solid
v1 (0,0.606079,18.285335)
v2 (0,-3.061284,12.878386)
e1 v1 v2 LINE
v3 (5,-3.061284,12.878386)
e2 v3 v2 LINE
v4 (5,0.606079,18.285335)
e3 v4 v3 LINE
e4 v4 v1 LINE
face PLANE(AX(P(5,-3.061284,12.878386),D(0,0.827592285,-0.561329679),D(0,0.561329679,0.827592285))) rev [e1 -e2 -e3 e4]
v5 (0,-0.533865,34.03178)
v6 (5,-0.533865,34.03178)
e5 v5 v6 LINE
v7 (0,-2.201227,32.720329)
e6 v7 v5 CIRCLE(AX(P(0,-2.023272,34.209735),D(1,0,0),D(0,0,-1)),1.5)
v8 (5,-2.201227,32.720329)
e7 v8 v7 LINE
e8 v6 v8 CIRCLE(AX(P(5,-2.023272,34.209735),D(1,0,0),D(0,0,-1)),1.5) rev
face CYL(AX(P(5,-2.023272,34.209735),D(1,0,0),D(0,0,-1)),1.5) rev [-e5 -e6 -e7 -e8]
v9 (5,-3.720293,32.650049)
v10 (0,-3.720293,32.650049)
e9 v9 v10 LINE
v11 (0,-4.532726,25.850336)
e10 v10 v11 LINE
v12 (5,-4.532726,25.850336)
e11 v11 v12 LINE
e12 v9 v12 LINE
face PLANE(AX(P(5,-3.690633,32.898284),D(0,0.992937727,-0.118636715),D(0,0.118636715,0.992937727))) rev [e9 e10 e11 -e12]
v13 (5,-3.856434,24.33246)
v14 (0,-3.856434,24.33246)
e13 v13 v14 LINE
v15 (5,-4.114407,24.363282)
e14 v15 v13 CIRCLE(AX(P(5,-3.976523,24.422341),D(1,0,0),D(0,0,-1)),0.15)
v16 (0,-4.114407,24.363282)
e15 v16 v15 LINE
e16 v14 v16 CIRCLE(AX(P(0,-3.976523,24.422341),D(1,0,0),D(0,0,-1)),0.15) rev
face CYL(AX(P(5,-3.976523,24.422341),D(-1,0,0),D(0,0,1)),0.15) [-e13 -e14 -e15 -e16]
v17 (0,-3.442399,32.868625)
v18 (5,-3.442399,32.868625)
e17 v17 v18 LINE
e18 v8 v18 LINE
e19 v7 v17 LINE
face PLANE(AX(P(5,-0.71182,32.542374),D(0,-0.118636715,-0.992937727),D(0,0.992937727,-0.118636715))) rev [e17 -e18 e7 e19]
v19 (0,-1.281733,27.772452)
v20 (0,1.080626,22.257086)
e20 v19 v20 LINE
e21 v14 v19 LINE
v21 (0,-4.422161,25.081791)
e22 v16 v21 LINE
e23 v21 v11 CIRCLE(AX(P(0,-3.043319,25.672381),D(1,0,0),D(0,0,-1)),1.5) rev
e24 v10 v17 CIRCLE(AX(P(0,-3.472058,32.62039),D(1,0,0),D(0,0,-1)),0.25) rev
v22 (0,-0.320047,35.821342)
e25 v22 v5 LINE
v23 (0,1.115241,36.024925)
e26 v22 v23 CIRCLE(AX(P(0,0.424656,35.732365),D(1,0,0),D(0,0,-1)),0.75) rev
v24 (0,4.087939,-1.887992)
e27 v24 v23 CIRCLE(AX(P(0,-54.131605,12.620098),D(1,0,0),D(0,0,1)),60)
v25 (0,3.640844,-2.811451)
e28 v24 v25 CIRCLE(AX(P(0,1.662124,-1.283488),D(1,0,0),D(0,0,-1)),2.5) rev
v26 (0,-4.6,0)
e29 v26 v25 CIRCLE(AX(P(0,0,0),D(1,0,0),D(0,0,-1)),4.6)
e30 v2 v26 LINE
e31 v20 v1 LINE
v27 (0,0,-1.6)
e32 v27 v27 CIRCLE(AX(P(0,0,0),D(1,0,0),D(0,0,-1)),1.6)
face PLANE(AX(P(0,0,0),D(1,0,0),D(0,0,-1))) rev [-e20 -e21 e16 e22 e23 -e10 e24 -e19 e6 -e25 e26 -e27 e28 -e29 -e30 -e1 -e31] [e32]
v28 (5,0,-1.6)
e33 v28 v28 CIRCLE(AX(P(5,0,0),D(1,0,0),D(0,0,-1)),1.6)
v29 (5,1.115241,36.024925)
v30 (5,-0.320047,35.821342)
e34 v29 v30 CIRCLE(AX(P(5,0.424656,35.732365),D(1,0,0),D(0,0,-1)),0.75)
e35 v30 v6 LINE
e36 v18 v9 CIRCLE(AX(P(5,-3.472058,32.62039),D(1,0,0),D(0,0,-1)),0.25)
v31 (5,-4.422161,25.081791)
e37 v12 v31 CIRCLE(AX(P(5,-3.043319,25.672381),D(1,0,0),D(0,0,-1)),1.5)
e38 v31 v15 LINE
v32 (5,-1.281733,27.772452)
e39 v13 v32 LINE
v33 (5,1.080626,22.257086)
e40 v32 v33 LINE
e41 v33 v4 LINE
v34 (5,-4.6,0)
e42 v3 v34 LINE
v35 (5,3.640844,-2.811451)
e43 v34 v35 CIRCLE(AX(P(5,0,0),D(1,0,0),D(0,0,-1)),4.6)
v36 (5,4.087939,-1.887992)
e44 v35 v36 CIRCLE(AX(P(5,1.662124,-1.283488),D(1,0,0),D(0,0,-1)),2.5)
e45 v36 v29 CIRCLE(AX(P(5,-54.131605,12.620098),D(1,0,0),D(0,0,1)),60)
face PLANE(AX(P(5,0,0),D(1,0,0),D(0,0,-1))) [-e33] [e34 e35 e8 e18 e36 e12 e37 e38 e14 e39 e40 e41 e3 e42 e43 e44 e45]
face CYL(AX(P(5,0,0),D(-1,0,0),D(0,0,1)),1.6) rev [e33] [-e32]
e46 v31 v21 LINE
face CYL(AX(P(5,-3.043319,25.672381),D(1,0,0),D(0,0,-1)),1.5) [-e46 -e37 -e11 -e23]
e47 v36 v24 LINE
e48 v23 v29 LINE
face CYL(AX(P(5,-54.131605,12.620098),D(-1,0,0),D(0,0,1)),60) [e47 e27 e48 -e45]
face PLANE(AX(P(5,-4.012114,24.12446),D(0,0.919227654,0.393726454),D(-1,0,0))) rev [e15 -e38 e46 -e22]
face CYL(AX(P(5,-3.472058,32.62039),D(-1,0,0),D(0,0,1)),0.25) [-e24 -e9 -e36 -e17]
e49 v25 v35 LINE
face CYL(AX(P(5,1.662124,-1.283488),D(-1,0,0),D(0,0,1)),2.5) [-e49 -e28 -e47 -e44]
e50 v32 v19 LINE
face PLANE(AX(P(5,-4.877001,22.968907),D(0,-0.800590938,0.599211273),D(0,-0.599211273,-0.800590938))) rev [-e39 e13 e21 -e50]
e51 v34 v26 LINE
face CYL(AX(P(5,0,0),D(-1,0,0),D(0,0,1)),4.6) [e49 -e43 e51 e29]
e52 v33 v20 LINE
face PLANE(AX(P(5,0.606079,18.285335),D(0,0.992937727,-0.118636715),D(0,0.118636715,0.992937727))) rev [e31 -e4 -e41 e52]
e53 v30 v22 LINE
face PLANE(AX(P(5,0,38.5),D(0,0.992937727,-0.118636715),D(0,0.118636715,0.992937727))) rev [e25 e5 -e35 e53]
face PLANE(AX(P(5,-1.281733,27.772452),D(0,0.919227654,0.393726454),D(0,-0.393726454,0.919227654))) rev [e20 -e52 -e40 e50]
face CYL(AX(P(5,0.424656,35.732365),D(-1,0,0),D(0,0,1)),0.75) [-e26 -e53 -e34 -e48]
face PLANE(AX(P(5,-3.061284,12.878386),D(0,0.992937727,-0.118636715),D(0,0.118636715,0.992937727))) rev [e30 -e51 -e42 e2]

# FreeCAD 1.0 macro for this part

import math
import FreeCAD as App
import Part
import Sketcher
from FreeCAD import Vector
Q = App.Units.Quantity


def edges_at(feature, points):
    """Names of the edges that pass closest to the given points."""
    edges = feature.Shape.Edges
    near = lambda p: min(range(len(edges)), key=lambda i: edges[i].distToShape(Part.Vertex(*p))[0])
    return sorted({f"Edge{near(p) + 1}" for p in points})

doc = App.newDocument("Part")
params = doc.addObject("Spreadsheet::Sheet", "Params")
for row, (alias, value) in enumerate([
    ("sketch1_radius", "60 mm"),
    ("sketch1_diameter", "3.2 mm"),
    ("sketch1_radius2", "4.6 mm"),
    ("sketch1_length", "6 mm"),
    ("sketch1_length2", "3 mm"),
    ("pad1_length", "5 mm"),
    ("fillet_radius", "1.5 mm"),
    ("chamfer_size", "2.5 mm"),
    ("chamfer_size2", "1.443376 mm"),
    ("fillet2_radius", "1.5 mm"),
    ("fillet3_radius", "0.25 mm"),
    ("fillet4_radius", "0.15 mm"),
    ("fillet5_radius", "0.75 mm"),
    ("fillet6_radius", "2.5 mm"),
], start=1):
    params.set(f"A{row}", alias)
    params.set(f"B{row}", "=" + value)
    params.setAlias(f"B{row}", alias)

body = doc.addObject("PartDesign::Body", "Body")

sketch1 = body.newObject("Sketcher::SketchObject", "Sketch")
sketch1.AttachmentSupport = (doc.getObject("YZ_Plane"), [""])
sketch1.MapMode = "FlatFace"
sketch1.addGeometry([
    Part.LineSegment(Vector(0, 38.5, 0), Vector(-0.7, 32.5, 0)),
    Part.LineSegment(Vector(-0.7, 32.5, 0), Vector(-3.7, 32.9, 0)),
    Part.LineSegment(Vector(-3.7, 32.9, 0), Vector(-4.9, 23, 0)),
    Part.LineSegment(Vector(-4.9, 23, 0), Vector(-1.3, 27.8, 0)),
    Part.LineSegment(Vector(-1.3, 27.8, 0), Vector(1.1, 22.3, 0)),
    Part.LineSegment(Vector(1.1, 22.3, 0), Vector(0.6, 18.3, 0)),
    Part.LineSegment(Vector(0.6, 18.3, 0), Vector(-3.1, 12.9, 0)),
    Part.LineSegment(Vector(-3.1, 12.9, 0), Vector(-4.6, 0, 0)),
    Part.ArcOfCircle(Part.Circle(Vector(0, 0, 0), Vector(0, 0, 1), 4.6), math.radians(180), math.radians(330)),
    Part.ArcOfCircle(Part.Circle(Vector(-54.1, 12.6, 0), Vector(0, 0, 1), 60), math.radians(-14), math.radians(26)),
    Part.Circle(Vector(0, 0, 0), Vector(0, 0, 1), 1.6),
], False)
sketch1.addConstraint([
    Sketcher.Constraint("Coincident", 0, 2, 1, 1),
    Sketcher.Constraint("Coincident", 1, 2, 2, 1),
    Sketcher.Constraint("Coincident", 2, 2, 3, 1),
    Sketcher.Constraint("Coincident", 3, 2, 4, 1),
    Sketcher.Constraint("Coincident", 4, 2, 5, 1),
    Sketcher.Constraint("Coincident", 5, 2, 6, 1),
    Sketcher.Constraint("Coincident", 6, 2, 7, 1),
    Sketcher.Constraint("Coincident", 7, 2, 8, 1),
    Sketcher.Constraint("Coincident", 8, 2, 9, 1),
    Sketcher.Constraint("Coincident", 9, 2, 0, 1),
    Sketcher.Constraint("Coincident", 8, 3, -1, 1),
    Sketcher.Constraint("Coincident", 10, 3, -1, 1),
    Sketcher.Constraint("PointOnObject", 7, 2, -1),
    Sketcher.Constraint("PointOnObject", 9, 2, -2),
    Sketcher.Constraint("Perpendicular", 0, 1),
    Sketcher.Constraint("Perpendicular", 1, 2),
    Sketcher.Constraint("Parallel", 2, 5),
    Sketcher.Constraint("Parallel", 5, 7),
    Sketcher.Constraint("Equal", 0, 3),
    Sketcher.Constraint("Equal", 3, 4),
    Sketcher.Constraint("Radius", 9, Q("60 mm")),
    Sketcher.Constraint("Diameter", 10, Q("3.2 mm")),
    Sketcher.Constraint("Radius", 8, Q("4.6 mm")),
    Sketcher.Constraint("Distance", 0, Q("6 mm")),
    Sketcher.Constraint("Distance", 1, Q("3 mm")),
    Sketcher.Constraint("Distance", 2, Q("10 mm")),
    Sketcher.Constraint("Distance", 5, Q("4 mm")),
    Sketcher.Constraint("DistanceY", 8, 2, -1, 1, Q("2.3 mm")),
    Sketcher.Constraint("DistanceY", -1, 1, 9, 2, Q("38.5 mm")),
    Sketcher.Constraint("DistanceX", 2, 2, -1, 1, Q("4.877001 mm")),
    Sketcher.Constraint("DistanceX", 6, 2, 8, 2, Q("7.045001 mm")),
    Sketcher.Constraint("DistanceX", 1, 2, 3, 2, Q("2.4089 mm")),
    Sketcher.Constraint("DistanceX", 0, 2, 5, 2, Q("1.317899 mm")),
])
sketch1.setExpression("Constraints[20]", "Params.sketch1_radius")
sketch1.setExpression("Constraints[21]", "Params.sketch1_diameter")
sketch1.setExpression("Constraints[22]", "Params.sketch1_radius2")
sketch1.setExpression("Constraints[23]", "Params.sketch1_length")
sketch1.setExpression("Constraints[24]", "Params.sketch1_length2")
pad1 = body.newObject("PartDesign::Pad", "Pad")
pad1.Profile = sketch1
pad1.setExpression("Length", "Params.pad1_length")
doc.recompute()

fillet = body.newObject("PartDesign::Fillet", "Fillet")
fillet.Base = (pad1, edges_at(pad1, [(2.5, -0.712, 32.542)]))
fillet.setExpression("Radius", "Params.fillet_radius")
doc.recompute()

chamfer = body.newObject("PartDesign::Chamfer", "Chamfer")
chamfer.Base = (fillet, edges_at(fillet, [(2.5, -4.877, 22.969)]))
chamfer.ChamferType = "Two distances"
chamfer.setExpression("Size", "Params.chamfer_size")
chamfer.setExpression("Size2", "Params.chamfer_size2")
doc.recompute()

fillet2 = body.newObject("PartDesign::Fillet", "Fillet001")
fillet2.Base = (chamfer, edges_at(chamfer, [(2.5, -4.58, 25.451)]))
fillet2.setExpression("Radius", "Params.fillet2_radius")
doc.recompute()

fillet3 = body.newObject("PartDesign::Fillet", "Fillet002")
fillet3.Base = (fillet2, edges_at(fillet2, [(2.5, -3.691, 32.898)]))
fillet3.setExpression("Radius", "Params.fillet3_radius")
doc.recompute()

fillet4 = body.newObject("PartDesign::Fillet", "Fillet003")
fillet4.Base = (fillet3, edges_at(fillet3, [(2.5, -4.012, 24.124)]))
fillet4.setExpression("Radius", "Params.fillet4_radius")
doc.recompute()

fillet5 = body.newObject("PartDesign::Fillet", "Fillet004")
fillet5.Base = (fillet4, edges_at(fillet4, [(2.5, 0, 38.5)]))
fillet5.setExpression("Radius", "Params.fillet5_radius")
doc.recompute()

fillet6 = body.newObject("PartDesign::Fillet", "Fillet005")
fillet6.Base = (fillet5, edges_at(fillet5, [(2.5, 3.984, -2.3)]))
fillet6.setExpression("Radius", "Params.fillet6_radius")

doc.recompute()
